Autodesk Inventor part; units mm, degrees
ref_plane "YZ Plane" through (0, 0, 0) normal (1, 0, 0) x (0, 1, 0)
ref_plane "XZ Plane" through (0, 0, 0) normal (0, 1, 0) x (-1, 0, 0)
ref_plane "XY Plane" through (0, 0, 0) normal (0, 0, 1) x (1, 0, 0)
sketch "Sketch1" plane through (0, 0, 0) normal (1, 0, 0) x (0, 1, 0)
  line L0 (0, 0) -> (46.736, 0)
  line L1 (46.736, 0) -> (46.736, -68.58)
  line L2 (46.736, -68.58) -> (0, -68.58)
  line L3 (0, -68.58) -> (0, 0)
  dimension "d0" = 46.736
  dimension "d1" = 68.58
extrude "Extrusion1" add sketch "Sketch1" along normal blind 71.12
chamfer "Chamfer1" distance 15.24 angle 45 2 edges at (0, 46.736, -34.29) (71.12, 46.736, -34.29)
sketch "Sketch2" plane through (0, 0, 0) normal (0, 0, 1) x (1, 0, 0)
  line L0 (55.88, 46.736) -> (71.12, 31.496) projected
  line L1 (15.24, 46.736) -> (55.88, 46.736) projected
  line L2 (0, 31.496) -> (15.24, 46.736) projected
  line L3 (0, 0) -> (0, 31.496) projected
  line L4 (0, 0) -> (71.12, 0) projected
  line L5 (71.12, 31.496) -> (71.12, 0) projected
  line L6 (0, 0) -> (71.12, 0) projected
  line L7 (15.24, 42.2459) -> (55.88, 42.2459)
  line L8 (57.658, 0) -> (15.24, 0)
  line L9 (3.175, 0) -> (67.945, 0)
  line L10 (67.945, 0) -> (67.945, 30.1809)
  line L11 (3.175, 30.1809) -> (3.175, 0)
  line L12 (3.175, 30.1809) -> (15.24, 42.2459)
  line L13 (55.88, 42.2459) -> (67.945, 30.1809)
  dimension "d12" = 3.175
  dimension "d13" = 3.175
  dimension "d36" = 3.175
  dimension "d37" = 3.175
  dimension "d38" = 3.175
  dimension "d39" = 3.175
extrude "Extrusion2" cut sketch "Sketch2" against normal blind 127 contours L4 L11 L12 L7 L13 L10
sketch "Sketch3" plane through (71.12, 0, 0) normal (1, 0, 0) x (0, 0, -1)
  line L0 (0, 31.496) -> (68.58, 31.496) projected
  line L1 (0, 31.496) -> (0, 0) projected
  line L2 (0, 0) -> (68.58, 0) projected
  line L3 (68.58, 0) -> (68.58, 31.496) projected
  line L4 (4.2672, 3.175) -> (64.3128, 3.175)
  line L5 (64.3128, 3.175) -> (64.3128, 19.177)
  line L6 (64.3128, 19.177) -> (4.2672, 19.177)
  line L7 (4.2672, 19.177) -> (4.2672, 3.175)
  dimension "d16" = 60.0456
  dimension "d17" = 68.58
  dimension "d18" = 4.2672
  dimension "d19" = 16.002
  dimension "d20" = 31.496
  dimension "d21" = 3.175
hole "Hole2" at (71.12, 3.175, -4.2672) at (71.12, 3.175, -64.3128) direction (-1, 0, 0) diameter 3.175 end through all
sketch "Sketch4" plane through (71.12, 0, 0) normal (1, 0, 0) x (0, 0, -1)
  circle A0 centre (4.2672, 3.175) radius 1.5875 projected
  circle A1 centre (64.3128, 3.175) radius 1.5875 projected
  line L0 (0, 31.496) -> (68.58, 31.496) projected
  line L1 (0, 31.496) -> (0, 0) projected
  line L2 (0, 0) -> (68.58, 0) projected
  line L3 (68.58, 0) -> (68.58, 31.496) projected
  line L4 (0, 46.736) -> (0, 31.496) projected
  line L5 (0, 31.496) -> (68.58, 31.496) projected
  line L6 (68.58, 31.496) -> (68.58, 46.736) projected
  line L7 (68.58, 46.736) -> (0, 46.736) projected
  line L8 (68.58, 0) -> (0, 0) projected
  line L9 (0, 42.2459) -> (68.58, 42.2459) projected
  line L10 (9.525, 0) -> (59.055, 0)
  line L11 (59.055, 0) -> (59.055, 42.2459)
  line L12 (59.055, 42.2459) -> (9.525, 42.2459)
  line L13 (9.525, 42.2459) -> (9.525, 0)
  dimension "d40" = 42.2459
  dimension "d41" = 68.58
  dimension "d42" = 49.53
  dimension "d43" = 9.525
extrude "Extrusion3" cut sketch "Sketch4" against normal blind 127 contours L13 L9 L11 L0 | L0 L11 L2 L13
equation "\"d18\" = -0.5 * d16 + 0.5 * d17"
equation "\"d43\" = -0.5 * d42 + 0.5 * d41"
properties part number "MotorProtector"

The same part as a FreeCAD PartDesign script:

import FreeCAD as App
import Part
import Sketcher
Q = App.Units.Quantity


def edges_at(feature, points):
    """Names of the edges that pass closest to the given points."""
    edges = feature.Shape.Edges
    near = lambda p: min(range(len(edges)), key=lambda i: edges[i].distToShape(Part.Vertex(*p))[0])
    return sorted({f"Edge{near(p) + 1}" for p in points})


def add_polygon(sketch, points):
    """Adds a closed chain of lines whose ends are joined by coincident constraints."""
    first, n = sketch.GeometryCount, len(points)
    for a, b in zip(points, points[1:] + points[:1]):
        sketch.addGeometry(Part.LineSegment(App.Vector(*a, 0), App.Vector(*b, 0)), False)
    for i in range(n):
        sketch.addConstraint(Sketcher.Constraint("Coincident", first + i, 2, first + (i + 1) % n, 1))

doc = App.newDocument("Part")
body = doc.addObject("PartDesign::Body", "Body")

# Sketch on YZ plane
sketch1 = body.newObject("Sketcher::SketchObject", "Sketch")
sketch1.AttachmentSupport = (doc.getObject("YZ_Plane"), [""])
sketch1.MapMode = "FlatFace"
add_polygon(sketch1, [(47, 0), (0, 0), (0, -69), (47, -69)])  # lines 0-3
sketch1.addConstraint(Sketcher.Constraint("Horizontal", 0))
sketch1.addConstraint(Sketcher.Constraint("Vertical", 1))
sketch1.addConstraint(Sketcher.Constraint("Horizontal", 2))
sketch1.addConstraint(Sketcher.Constraint("Vertical", 3))
sketch1.addConstraint(Sketcher.Constraint("Coincident", 0, 2, -1, 1))
sketch1.addConstraint(Sketcher.Constraint("DistanceY", 1, 2, 1, 1, Q("2.7 in")))
sketch1.addConstraint(Sketcher.Constraint("DistanceX", 0, 2, 0, 1, Q("1.84 in")))
pad1 = body.newObject("PartDesign::Pad", "Pad")
pad1.Profile = sketch1
pad1.Length = Q("2.8 in")
doc.recompute()

chamfer = body.newObject("PartDesign::Chamfer", "Chamfer")
chamfer.Base = (pad1, edges_at(pad1, [(0, 46.736, -34.29), (71.12, 46.736, -34.29)]))
chamfer.Size = Q("0.6 in")

# Sketch on XY plane
sketch2 = body.newObject("Sketcher::SketchObject", "Sketch001")
sketch2.AttachmentSupport = (doc.getObject("XY_Plane"), [""])
sketch2.MapMode = "FlatFace"
add_polygon(sketch2, [(3, 0), (68, 0), (68, 30), (56, 42), (15, 42), (3, 30)])  # lines 0-5
sketch2.addConstraint(Sketcher.Constraint("Horizontal", 0))
sketch2.addConstraint(Sketcher.Constraint("Vertical", 1))
sketch2.addConstraint(Sketcher.Constraint("Horizontal", 3))
sketch2.addConstraint(Sketcher.Constraint("Vertical", 5))
sketch2.addConstraint(Sketcher.Constraint("PointOnObject", 0, 2, -1))
sketch2.addConstraint(Sketcher.Constraint("Perpendicular", 2, 4))
sketch2.addConstraint(Sketcher.Constraint("Horizontal", 1, 2, 4, 2))
sketch2.addConstraint(Sketcher.Constraint("Equal", 2, 4))
sketch2.addConstraint(Sketcher.Constraint("DistanceX", 3, 2, 3, 1, Q("1.6 in")))
sketch2.addConstraint(Sketcher.Constraint("DistanceX", -1, 1, 4, 2, Q("0.125 in")))
sketch2.addConstraint(Sketcher.Constraint("DistanceX", 0, 1, 0, 2, Q("2.55 in")))
sketch2.addConstraint(Sketcher.Constraint("DistanceY", 1, 1, 1, 2, Q("30.181 mm")))
pocket1 = body.newObject("PartDesign::Pocket", "Pocket")
pocket1.Profile = sketch2
pocket1.Length = Q("5 in")

# Sketch on YZ plane
sketch3 = body.newObject("Sketcher::SketchObject", "Sketch002")
sketch3.AttachmentSupport = (doc.getObject("YZ_Plane"), [""])
sketch3.MapMode = "FlatFace"
sketch3.AttachmentOffset = App.Placement(App.Vector(0, 0, 2.8 * 25.4), App.Rotation())
sketch3.addGeometry(Part.Circle(App.Vector(3.2, -4.3, 0), App.Vector(0, 0, 1), 1.6), False)
sketch3.addGeometry(Part.Circle(App.Vector(3.2, -64.3, 0), App.Vector(0, 0, 1), 1.6), False)
sketch3.addConstraint(Sketcher.Constraint("Equal", 0, 1))
sketch3.addConstraint(Sketcher.Constraint("Vertical", 0, 3, 1, 3))
sketch3.addConstraint(Sketcher.Constraint("Diameter", 0, Q("0.125 in")))
sketch3.addConstraint(Sketcher.Constraint("DistanceX", -1, 1, 0, 3, Q("0.125 in")))
sketch3.addConstraint(Sketcher.Constraint("DistanceY", 0, 3, -1, 1, Q("0.168 in")))
sketch3.addConstraint(Sketcher.Constraint("DistanceY", 1, 3, -1, 1, Q("2.532 in")))
doc.recompute()
hole = body.newObject("PartDesign::Hole", "Hole")
hole.Profile = sketch3
hole.ThreadType = "None"
hole.Diameter = Q("0.125 in")
hole.DepthType = "ThroughAll"

# Sketch on YZ plane
sketch4 = body.newObject("Sketcher::SketchObject", "Sketch003")
sketch4.AttachmentSupport = (doc.getObject("YZ_Plane"), [""])
sketch4.MapMode = "FlatFace"
sketch4.AttachmentOffset = App.Placement(App.Vector(0, 0, 2.8 * 25.4), App.Rotation())
add_polygon(sketch4, [(42, -10), (0, -10), (0, -59), (42, -59)])  # lines 0-3
sketch4.addConstraint(Sketcher.Constraint("Horizontal", 0))
sketch4.addConstraint(Sketcher.Constraint("Vertical", 1))
sketch4.addConstraint(Sketcher.Constraint("Horizontal", 2))
sketch4.addConstraint(Sketcher.Constraint("Vertical", 3))
sketch4.addConstraint(Sketcher.Constraint("PointOnObject", 0, 2, -2))
sketch4.addConstraint(Sketcher.Constraint("DistanceY", 1, 2, 1, 1, Q("1.95 in")))
sketch4.addConstraint(Sketcher.Constraint("DistanceY", 0, 2, -1, 1, Q("0.375 in")))
sketch4.addConstraint(Sketcher.Constraint("DistanceX", 0, 2, 0, 1, Q("42.246 mm")))
pocket2 = body.newObject("PartDesign::Pocket", "Pocket001")
pocket2.Profile = sketch4
pocket2.Length = Q("5 in")

doc.recompute()
